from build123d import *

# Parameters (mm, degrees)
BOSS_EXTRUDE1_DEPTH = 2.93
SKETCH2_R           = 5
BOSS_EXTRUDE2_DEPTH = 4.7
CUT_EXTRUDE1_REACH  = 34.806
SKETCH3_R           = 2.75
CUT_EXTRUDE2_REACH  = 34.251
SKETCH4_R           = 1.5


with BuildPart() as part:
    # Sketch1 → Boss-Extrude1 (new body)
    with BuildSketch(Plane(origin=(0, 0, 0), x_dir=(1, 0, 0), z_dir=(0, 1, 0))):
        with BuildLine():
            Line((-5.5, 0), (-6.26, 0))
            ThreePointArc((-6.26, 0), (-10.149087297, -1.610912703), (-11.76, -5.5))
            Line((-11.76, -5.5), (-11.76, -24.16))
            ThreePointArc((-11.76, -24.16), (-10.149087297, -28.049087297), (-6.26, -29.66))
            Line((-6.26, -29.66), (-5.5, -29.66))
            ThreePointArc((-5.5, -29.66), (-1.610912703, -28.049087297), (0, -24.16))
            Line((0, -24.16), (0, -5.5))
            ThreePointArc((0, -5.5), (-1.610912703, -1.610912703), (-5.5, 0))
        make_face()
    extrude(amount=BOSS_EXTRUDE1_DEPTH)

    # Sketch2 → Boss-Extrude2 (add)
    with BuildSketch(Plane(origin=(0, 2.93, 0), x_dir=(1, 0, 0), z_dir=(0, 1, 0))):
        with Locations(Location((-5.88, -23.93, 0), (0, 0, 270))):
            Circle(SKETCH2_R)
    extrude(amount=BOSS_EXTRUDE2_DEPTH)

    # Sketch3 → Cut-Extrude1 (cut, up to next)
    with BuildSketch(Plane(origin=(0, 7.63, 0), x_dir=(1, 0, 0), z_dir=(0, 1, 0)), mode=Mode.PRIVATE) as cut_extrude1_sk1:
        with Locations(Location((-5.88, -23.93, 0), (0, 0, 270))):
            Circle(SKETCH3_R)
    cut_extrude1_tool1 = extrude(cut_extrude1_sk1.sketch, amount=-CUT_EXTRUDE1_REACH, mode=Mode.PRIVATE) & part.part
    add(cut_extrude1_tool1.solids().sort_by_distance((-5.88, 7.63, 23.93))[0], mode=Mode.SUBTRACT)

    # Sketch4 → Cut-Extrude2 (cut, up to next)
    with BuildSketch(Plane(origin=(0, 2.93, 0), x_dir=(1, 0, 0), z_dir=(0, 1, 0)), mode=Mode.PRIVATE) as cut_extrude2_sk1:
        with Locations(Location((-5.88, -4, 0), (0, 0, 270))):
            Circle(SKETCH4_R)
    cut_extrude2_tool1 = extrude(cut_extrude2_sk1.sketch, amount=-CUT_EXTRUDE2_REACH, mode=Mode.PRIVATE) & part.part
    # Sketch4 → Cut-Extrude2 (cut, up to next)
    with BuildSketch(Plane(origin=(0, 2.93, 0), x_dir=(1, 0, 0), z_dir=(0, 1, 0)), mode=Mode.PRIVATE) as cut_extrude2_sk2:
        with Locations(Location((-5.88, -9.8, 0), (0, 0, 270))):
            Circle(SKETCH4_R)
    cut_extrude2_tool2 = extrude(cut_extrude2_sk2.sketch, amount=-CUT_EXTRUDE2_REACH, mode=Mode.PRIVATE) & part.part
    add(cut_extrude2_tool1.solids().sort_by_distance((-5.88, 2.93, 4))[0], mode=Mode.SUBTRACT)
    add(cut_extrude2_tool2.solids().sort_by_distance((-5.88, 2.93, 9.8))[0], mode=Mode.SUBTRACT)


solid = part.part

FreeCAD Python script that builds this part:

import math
import FreeCAD as App
import Part
import Sketcher
Q = App.Units.Quantity

doc = App.newDocument("Part")
body = doc.addObject("PartDesign::Body", "Body")

# Sketch on XZ plane
sketch1 = body.newObject("Sketcher::SketchObject", "Sketch")
sketch1.AttachmentSupport = (doc.getObject("XZ_Plane"), [""])
sketch1.MapMode = "FlatFace"
sketch1.addGeometry(Part.LineSegment(App.Vector(-5.5, 0, 0), App.Vector(-6.3, 0, 0)), False)
sketch1.addGeometry(Part.ArcOfCircle(Part.Circle(App.Vector(-6.3, 5.5, 0), App.Vector(0, 0, 1), 5.5), math.radians(180), math.radians(270)), False)
sketch1.addGeometry(Part.LineSegment(App.Vector(-11.8, 5.5, 0), App.Vector(-11.8, 24.2, 0)), False)
sketch1.addGeometry(Part.ArcOfCircle(Part.Circle(App.Vector(-6.3, 24.2, 0), App.Vector(0, 0, 1), 5.5), math.radians(90), math.radians(180)), False)
sketch1.addGeometry(Part.LineSegment(App.Vector(-6.3, 29.7, 0), App.Vector(-5.5, 29.7, 0)), False)
sketch1.addGeometry(Part.ArcOfCircle(Part.Circle(App.Vector(-5.5, 24.2, 0), App.Vector(0, 0, 1), 5.5), math.radians(0), math.radians(90)), False)
sketch1.addGeometry(Part.LineSegment(App.Vector(0, 24.2, 0), App.Vector(0, 5.5, 0)), False)
sketch1.addGeometry(Part.ArcOfCircle(Part.Circle(App.Vector(-5.5, 5.5, 0), App.Vector(0, 0, 1), 5.5), math.radians(-90), math.radians(0)), False)
sketch1.addConstraint(Sketcher.Constraint("Tangent", 0, 2, 1, 2))
sketch1.addConstraint(Sketcher.Constraint("Tangent", 1, 1, 2, 1))
sketch1.addConstraint(Sketcher.Constraint("Tangent", 2, 2, 3, 2))
sketch1.addConstraint(Sketcher.Constraint("Tangent", 3, 1, 4, 1))
sketch1.addConstraint(Sketcher.Constraint("Tangent", 4, 2, 5, 2))
sketch1.addConstraint(Sketcher.Constraint("Tangent", 5, 1, 6, 1))
sketch1.addConstraint(Sketcher.Constraint("Tangent", 6, 2, 7, 2))
sketch1.addConstraint(Sketcher.Constraint("Tangent", 7, 1, 0, 1))
sketch1.addConstraint(Sketcher.Constraint("Horizontal", 0))
sketch1.addConstraint(Sketcher.Constraint("Vertical", 2))
sketch1.addConstraint(Sketcher.Constraint("Horizontal", 4))
sketch1.addConstraint(Sketcher.Constraint("Vertical", 6))
sketch1.addConstraint(Sketcher.Constraint("Equal", 1, 3))
sketch1.addConstraint(Sketcher.Constraint("Equal", 3, 5))
sketch1.addConstraint(Sketcher.Constraint("Equal", 5, 7))
sketch1.addConstraint(Sketcher.Constraint("PointOnObject", 0, 2, -1))
sketch1.addConstraint(Sketcher.Constraint("PointOnObject", 5, 1, -2))
sketch1.addConstraint(Sketcher.Constraint("Radius", 1, Q("5.5 mm")))
sketch1.addConstraint(Sketcher.Constraint("DistanceX", 0, 2, 0, 1, Q("0.76 mm")))
sketch1.addConstraint(Sketcher.Constraint("DistanceY", 2, 1, 2, 2, Q("18.66 mm")))
pad1 = body.newObject("PartDesign::Pad", "Pad")
pad1.Profile = sketch1
pad1.Length = 2.93
pad1.Reversed = True

# Sketch on XZ plane
sketch2 = body.newObject("Sketcher::SketchObject", "Sketch001")
sketch2.AttachmentSupport = (doc.getObject("XZ_Plane"), [""])
sketch2.MapMode = "FlatFace"
sketch2.AttachmentOffset = App.Placement(App.Vector(0, 0, -2.93), App.Rotation())
sketch2.addGeometry(Part.Circle(App.Vector(-6, 24, 0), App.Vector(0, 0, 1), 5), False)
sketch2.addConstraint(Sketcher.Constraint("Diameter", 0, Q("10 mm")))
sketch2.addConstraint(Sketcher.Constraint("DistanceX", 0, 3, -1, 1, Q("5.88 mm")))
sketch2.addConstraint(Sketcher.Constraint("DistanceY", -1, 1, 0, 3, Q("23.93 mm")))
pad2 = body.newObject("PartDesign::Pad", "Pad001")
pad2.Profile = sketch2
pad2.Length = 4.7
pad2.Reversed = True

# Sketch on XZ plane
sketch3 = body.newObject("Sketcher::SketchObject", "Sketch002")
sketch3.AttachmentSupport = (doc.getObject("XZ_Plane"), [""])
sketch3.MapMode = "FlatFace"
sketch3.AttachmentOffset = App.Placement(App.Vector(0, 0, -7.63), App.Rotation())
sketch3.addGeometry(Part.Circle(App.Vector(-5.9, 23.9, 0), App.Vector(0, 0, 1), 2.8), False)
sketch3.addConstraint(Sketcher.Constraint("Diameter", 0, Q("5.5 mm")))
sketch3.addConstraint(Sketcher.Constraint("DistanceX", 0, 3, -1, 1, Q("5.88 mm")))
sketch3.addConstraint(Sketcher.Constraint("DistanceY", -1, 1, 0, 3, Q("23.93 mm")))
pocket1 = body.newObject("PartDesign::Pocket", "Pocket")
pocket1.Profile = sketch3
pocket1.Type = "UpToFirst"
pocket1.Reversed = True

# Sketch on XZ plane
sketch4 = body.newObject("Sketcher::SketchObject", "Sketch003")
sketch4.AttachmentSupport = (doc.getObject("XZ_Plane"), [""])
sketch4.MapMode = "FlatFace"
sketch4.AttachmentOffset = App.Placement(App.Vector(0, 0, -2.93), App.Rotation())
sketch4.addGeometry(Part.Circle(App.Vector(-5.9, 4, 0), App.Vector(0, 0, 1), 1.5), False)
sketch4.addConstraint(Sketcher.Constraint("Diameter", 0, Q("3 mm")))
sketch4.addConstraint(Sketcher.Constraint("DistanceY", -1, 1, 0, 3, Q("4 mm")))
sketch4.addConstraint(Sketcher.Constraint("DistanceX", 0, 3, -1, 1, Q("5.88 mm")))
pocket2 = body.newObject("PartDesign::Pocket", "Pocket001")
pocket2.Profile = sketch4
pocket2.Type = "UpToFirst"
pocket2.Reversed = True

# Sketch on XZ plane
sketch5 = body.newObject("Sketcher::SketchObject", "Sketch004")
sketch5.AttachmentSupport = (doc.getObject("XZ_Plane"), [""])
sketch5.MapMode = "FlatFace"
sketch5.AttachmentOffset = App.Placement(App.Vector(0, 0, -2.93), App.Rotation())
sketch5.addGeometry(Part.Circle(App.Vector(-5.9, 9.8, 0), App.Vector(0, 0, 1), 1.5), False)
sketch5.addConstraint(Sketcher.Constraint("Diameter", 0, Q("3 mm")))
sketch5.addConstraint(Sketcher.Constraint("DistanceY", -1, 1, 0, 3, Q("9.8 mm")))
sketch5.addConstraint(Sketcher.Constraint("DistanceX", 0, 3, -1, 1, Q("5.88 mm")))
pocket3 = body.newObject("PartDesign::Pocket", "Pocket002")
pocket3.Profile = sketch5
pocket3.Type = "UpToFirst"
pocket3.Reversed = True

doc.recompute()
